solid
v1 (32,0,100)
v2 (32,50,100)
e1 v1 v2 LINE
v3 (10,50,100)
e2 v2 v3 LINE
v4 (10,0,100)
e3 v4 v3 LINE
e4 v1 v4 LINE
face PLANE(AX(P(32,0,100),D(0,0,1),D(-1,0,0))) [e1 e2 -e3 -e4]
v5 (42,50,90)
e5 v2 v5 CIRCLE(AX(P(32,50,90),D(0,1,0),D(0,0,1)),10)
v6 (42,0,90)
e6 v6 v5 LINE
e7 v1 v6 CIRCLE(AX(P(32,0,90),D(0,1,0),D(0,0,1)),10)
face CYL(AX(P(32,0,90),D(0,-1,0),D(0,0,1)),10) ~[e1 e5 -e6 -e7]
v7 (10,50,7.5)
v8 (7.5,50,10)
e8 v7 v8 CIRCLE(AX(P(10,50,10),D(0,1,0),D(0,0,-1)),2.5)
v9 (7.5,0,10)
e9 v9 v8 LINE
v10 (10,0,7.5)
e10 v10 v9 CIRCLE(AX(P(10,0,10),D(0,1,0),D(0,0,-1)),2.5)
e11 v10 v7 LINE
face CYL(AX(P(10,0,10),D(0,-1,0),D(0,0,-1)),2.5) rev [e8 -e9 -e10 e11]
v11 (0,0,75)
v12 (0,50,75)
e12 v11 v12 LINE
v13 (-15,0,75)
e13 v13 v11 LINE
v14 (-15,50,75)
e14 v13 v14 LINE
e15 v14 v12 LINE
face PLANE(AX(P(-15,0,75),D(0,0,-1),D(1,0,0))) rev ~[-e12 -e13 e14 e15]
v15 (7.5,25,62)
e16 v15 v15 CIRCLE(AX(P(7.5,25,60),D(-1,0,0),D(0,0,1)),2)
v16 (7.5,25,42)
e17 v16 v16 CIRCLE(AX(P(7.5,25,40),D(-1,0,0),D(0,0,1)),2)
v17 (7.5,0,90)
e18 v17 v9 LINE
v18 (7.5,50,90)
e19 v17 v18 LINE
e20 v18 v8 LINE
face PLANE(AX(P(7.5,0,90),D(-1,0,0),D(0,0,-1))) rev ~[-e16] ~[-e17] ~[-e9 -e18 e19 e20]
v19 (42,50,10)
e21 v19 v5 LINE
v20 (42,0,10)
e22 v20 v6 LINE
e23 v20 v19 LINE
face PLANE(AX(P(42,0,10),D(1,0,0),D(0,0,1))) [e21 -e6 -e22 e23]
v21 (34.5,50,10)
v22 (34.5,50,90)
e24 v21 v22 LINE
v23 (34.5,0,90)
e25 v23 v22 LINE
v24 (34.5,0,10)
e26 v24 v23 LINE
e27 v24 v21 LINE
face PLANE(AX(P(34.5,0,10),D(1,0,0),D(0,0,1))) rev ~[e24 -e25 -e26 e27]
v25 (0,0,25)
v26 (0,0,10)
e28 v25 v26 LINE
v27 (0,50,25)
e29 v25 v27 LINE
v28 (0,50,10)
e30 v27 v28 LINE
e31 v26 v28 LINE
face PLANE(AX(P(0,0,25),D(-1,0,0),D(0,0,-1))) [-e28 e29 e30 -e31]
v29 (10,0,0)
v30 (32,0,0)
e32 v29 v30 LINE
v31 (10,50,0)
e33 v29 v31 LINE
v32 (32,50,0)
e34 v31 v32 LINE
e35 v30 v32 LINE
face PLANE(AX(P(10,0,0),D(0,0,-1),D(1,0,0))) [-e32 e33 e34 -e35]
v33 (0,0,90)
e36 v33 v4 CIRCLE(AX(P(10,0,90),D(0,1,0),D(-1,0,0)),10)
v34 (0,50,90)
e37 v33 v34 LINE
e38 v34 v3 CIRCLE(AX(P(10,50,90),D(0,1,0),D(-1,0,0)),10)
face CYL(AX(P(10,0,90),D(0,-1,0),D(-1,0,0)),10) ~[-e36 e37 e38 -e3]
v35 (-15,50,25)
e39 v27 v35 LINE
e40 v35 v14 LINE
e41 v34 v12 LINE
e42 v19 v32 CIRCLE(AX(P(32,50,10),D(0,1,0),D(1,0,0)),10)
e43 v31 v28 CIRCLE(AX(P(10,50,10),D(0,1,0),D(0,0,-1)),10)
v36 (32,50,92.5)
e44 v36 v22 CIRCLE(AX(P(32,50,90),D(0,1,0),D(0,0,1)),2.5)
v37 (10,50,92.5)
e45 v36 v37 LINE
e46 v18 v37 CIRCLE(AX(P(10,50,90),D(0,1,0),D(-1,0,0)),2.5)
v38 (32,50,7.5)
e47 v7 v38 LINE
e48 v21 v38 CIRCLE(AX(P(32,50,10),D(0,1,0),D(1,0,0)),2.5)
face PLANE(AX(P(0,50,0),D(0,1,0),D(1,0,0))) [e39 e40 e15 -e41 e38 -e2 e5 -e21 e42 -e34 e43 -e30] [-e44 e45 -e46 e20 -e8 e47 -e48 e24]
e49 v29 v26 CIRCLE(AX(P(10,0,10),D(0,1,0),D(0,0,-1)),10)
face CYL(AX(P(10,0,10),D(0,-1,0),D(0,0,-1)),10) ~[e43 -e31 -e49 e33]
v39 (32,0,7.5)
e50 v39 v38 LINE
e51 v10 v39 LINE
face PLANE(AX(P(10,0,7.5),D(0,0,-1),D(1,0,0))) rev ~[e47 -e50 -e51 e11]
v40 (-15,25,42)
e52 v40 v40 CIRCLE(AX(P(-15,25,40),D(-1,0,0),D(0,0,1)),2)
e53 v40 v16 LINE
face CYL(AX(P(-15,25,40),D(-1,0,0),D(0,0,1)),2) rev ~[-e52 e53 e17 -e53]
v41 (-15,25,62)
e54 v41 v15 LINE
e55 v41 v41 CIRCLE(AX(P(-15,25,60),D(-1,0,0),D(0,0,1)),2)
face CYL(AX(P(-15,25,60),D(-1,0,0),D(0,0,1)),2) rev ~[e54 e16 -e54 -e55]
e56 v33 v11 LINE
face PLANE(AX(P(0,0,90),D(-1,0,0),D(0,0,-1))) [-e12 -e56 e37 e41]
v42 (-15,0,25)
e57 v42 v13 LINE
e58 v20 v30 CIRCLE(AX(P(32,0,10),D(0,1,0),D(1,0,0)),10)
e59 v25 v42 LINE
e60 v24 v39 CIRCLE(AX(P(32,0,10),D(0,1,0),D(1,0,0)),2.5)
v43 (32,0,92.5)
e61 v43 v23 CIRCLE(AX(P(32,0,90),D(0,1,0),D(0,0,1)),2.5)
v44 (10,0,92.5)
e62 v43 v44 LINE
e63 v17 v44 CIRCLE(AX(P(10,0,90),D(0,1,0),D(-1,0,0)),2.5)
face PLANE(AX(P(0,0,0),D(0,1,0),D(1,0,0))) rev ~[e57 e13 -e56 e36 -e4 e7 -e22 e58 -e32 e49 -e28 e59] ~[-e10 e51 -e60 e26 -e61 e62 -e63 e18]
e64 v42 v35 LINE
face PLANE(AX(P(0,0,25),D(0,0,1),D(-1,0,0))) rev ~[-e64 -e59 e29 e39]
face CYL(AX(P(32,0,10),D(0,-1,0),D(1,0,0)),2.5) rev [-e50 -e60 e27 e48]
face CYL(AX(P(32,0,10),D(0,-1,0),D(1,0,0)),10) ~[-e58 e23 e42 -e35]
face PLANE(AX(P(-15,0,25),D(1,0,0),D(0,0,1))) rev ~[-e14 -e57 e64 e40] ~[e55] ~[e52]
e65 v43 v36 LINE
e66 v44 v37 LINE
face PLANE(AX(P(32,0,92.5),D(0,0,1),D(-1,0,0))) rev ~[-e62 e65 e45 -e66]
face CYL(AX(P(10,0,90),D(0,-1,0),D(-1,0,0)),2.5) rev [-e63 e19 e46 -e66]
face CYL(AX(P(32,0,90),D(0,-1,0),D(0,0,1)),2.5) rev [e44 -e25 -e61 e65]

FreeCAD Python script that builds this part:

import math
import FreeCAD as App
import Part
import Sketcher
from FreeCAD import Vector
Q = App.Units.Quantity

doc = App.newDocument("Part")
body = doc.addObject("PartDesign::Body", "Body")

sketch1 = doc.addObject("Sketcher::SketchObject", "Sketch")
body.addObject(sketch1)
sketch1.AttachmentSupport = (doc.XZ_Plane, [""])
sketch1.MapMode = "FlatFace"
sketch1.addGeometry(Part.LineSegment(Vector(32, 0, 0), Vector(10, 0, 0)), False)
sketch1.addGeometry(Part.ArcOfCircle(Part.Circle(Vector(10, 10, 0), Vector(0, 0, 1), 10), math.radians(180), math.radians(270)), False)
sketch1.addGeometry(Part.LineSegment(Vector(0, 10, 0), Vector(0, 25, 0)), False)
sketch1.addGeometry(Part.LineSegment(Vector(0, 25, 0), Vector(-15, 25, 0)), False)
sketch1.addGeometry(Part.LineSegment(Vector(-15, 25, 0), Vector(-15, 75, 0)), False)
sketch1.addGeometry(Part.LineSegment(Vector(-15, 75, 0), Vector(0, 75, 0)), False)
sketch1.addGeometry(Part.LineSegment(Vector(0, 75, 0), Vector(0, 90, 0)), False)
sketch1.addGeometry(Part.ArcOfCircle(Part.Circle(Vector(10, 90, 0), Vector(0, 0, 1), 10), math.radians(90), math.radians(180)), False)
sketch1.addGeometry(Part.LineSegment(Vector(10, 100, 0), Vector(32, 100, 0)), False)
sketch1.addGeometry(Part.ArcOfCircle(Part.Circle(Vector(32, 90, 0), Vector(0, 0, 1), 10), math.radians(0), math.radians(90)), False)
sketch1.addGeometry(Part.LineSegment(Vector(42, 90, 0), Vector(42, 10, 0)), False)
sketch1.addGeometry(Part.ArcOfCircle(Part.Circle(Vector(32, 10, 0), Vector(0, 0, 1), 10), math.radians(-90), math.radians(0)), False)
sketch1.addGeometry(Part.ArcOfCircle(Part.Circle(Vector(10, 10, 0), Vector(0, 0, 1), 2.5), math.radians(180), math.radians(270)), False)
sketch1.addGeometry(Part.LineSegment(Vector(10, 7.5, 0), Vector(32, 7.5, 0)), False)
sketch1.addGeometry(Part.ArcOfCircle(Part.Circle(Vector(32, 10, 0), Vector(0, 0, 1), 2.5), math.radians(-90), math.radians(0)), False)
sketch1.addGeometry(Part.LineSegment(Vector(34.5, 10, 0), Vector(34.5, 90, 0)), False)
sketch1.addGeometry(Part.ArcOfCircle(Part.Circle(Vector(32, 90, 0), Vector(0, 0, 1), 2.5), math.radians(0), math.radians(90)), False)
sketch1.addGeometry(Part.LineSegment(Vector(32, 92.5, 0), Vector(10, 92.5, 0)), False)
sketch1.addGeometry(Part.ArcOfCircle(Part.Circle(Vector(10, 90, 0), Vector(0, 0, 1), 2.5), math.radians(90), math.radians(180)), False)
sketch1.addGeometry(Part.LineSegment(Vector(7.5, 90, 0), Vector(7.5, 10, 0)), False)
sketch1.addConstraint(Sketcher.Constraint("Tangent", 0, 2, 1, 2))
sketch1.addConstraint(Sketcher.Constraint("Tangent", 1, 1, 2, 1))
sketch1.addConstraint(Sketcher.Constraint("Coincident", 2, 2, 3, 1))
sketch1.addConstraint(Sketcher.Constraint("Coincident", 3, 2, 4, 1))
sketch1.addConstraint(Sketcher.Constraint("Coincident", 4, 2, 5, 1))
sketch1.addConstraint(Sketcher.Constraint("Coincident", 5, 2, 6, 1))
sketch1.addConstraint(Sketcher.Constraint("Tangent", 6, 2, 7, 2))
sketch1.addConstraint(Sketcher.Constraint("Tangent", 7, 1, 8, 1))
sketch1.addConstraint(Sketcher.Constraint("Tangent", 8, 2, 9, 2))
sketch1.addConstraint(Sketcher.Constraint("Tangent", 9, 1, 10, 1))
sketch1.addConstraint(Sketcher.Constraint("Tangent", 10, 2, 11, 2))
sketch1.addConstraint(Sketcher.Constraint("Tangent", 11, 1, 0, 1))
sketch1.addConstraint(Sketcher.Constraint("Tangent", 12, 2, 13, 1))
sketch1.addConstraint(Sketcher.Constraint("Tangent", 13, 2, 14, 1))
sketch1.addConstraint(Sketcher.Constraint("Tangent", 14, 2, 15, 1))
sketch1.addConstraint(Sketcher.Constraint("Tangent", 15, 2, 16, 1))
sketch1.addConstraint(Sketcher.Constraint("Tangent", 16, 2, 17, 1))
sketch1.addConstraint(Sketcher.Constraint("Tangent", 17, 2, 18, 1))
sketch1.addConstraint(Sketcher.Constraint("Tangent", 18, 2, 19, 1))
sketch1.addConstraint(Sketcher.Constraint("Tangent", 19, 2, 12, 1))
sketch1.addConstraint(Sketcher.Constraint("Horizontal", 0))
sketch1.addConstraint(Sketcher.Constraint("Vertical", 2))
sketch1.addConstraint(Sketcher.Constraint("Horizontal", 3))
sketch1.addConstraint(Sketcher.Constraint("Vertical", 4))
sketch1.addConstraint(Sketcher.Constraint("Horizontal", 5))
sketch1.addConstraint(Sketcher.Constraint("Vertical", 6))
sketch1.addConstraint(Sketcher.Constraint("Horizontal", 8))
sketch1.addConstraint(Sketcher.Constraint("Vertical", 10))
sketch1.addConstraint(Sketcher.Constraint("Horizontal", 13))
sketch1.addConstraint(Sketcher.Constraint("Vertical", 15))
sketch1.addConstraint(Sketcher.Constraint("Horizontal", 17))
sketch1.addConstraint(Sketcher.Constraint("Vertical", 19))
sketch1.addConstraint(Sketcher.Constraint("Coincident", 12, 3, 1, 3))
sketch1.addConstraint(Sketcher.Constraint("Coincident", 14, 3, 11, 3))
sketch1.addConstraint(Sketcher.Constraint("Coincident", 16, 3, 9, 3))
sketch1.addConstraint(Sketcher.Constraint("Coincident", 18, 3, 7, 3))
sketch1.addConstraint(Sketcher.Constraint("Equal", 1, 7))
sketch1.addConstraint(Sketcher.Constraint("Equal", 7, 9))
sketch1.addConstraint(Sketcher.Constraint("Equal", 9, 11))
sketch1.addConstraint(Sketcher.Constraint("PointOnObject", 0, 2, -1))
sketch1.addConstraint(Sketcher.Constraint("PointOnObject", 1, 1, -2))
sketch1.addConstraint(Sketcher.Constraint("Equal", 5, 2))
sketch1.addConstraint(Sketcher.Constraint("Equal", 2, 6))
sketch1.addConstraint(Sketcher.Constraint("DistanceX", -1, 1, 9, 1, Q("42 mm")))
sketch1.addConstraint(Sketcher.Constraint("Radius", 1, Q("10 mm")))
sketch1.addConstraint(Sketcher.Constraint("Radius", 12, Q("2.5 mm")))
sketch1.addConstraint(Sketcher.Constraint("DistanceX", 3, 2, 3, 1, Q("15 mm")))
sketch1.addConstraint(Sketcher.Constraint("DistanceY", 4, 1, 4, 2, Q("50 mm")))
pad1 = doc.addObject("PartDesign::Pad", "Pad")
body.addObject(pad1)
pad1.Profile = sketch1
pad1.Length = 50
pad1.Reversed = True

sketch2 = doc.addObject("Sketcher::SketchObject", "Sketch001")
body.addObject(sketch2)
sketch2.AttachmentSupport = (doc.YZ_Plane, [""])
sketch2.MapMode = "FlatFace"
sketch2.AttachmentOffset = App.Placement(Vector(0, 0, -15), App.Rotation())
sketch2.addGeometry(Part.Circle(Vector(25, 40, 0), Vector(0, 0, 1), 2), False)
sketch2.addGeometry(Part.Circle(Vector(25, 60, 0), Vector(0, 0, 1), 2), False)
sketch2.addConstraint(Sketcher.Constraint("Equal", 0, 1))
sketch2.addConstraint(Sketcher.Constraint("Vertical", 0, 3, 1, 3))
sketch2.addConstraint(Sketcher.Constraint("Diameter", 0, Q("4 mm")))
sketch2.addConstraint(Sketcher.Constraint("DistanceX", -1, 1, 0, 3, Q("25 mm")))
sketch2.addConstraint(Sketcher.Constraint("DistanceY", -1, 1, 0, 3, Q("40 mm")))
sketch2.addConstraint(Sketcher.Constraint("DistanceY", -1, 1, 1, 3, Q("60 mm")))
pocket1 = doc.addObject("PartDesign::Pocket", "Pocket")
body.addObject(pocket1)
pocket1.Profile = sketch2
pocket1.Length = 45
pocket1.Reversed = True

doc.recompute()
